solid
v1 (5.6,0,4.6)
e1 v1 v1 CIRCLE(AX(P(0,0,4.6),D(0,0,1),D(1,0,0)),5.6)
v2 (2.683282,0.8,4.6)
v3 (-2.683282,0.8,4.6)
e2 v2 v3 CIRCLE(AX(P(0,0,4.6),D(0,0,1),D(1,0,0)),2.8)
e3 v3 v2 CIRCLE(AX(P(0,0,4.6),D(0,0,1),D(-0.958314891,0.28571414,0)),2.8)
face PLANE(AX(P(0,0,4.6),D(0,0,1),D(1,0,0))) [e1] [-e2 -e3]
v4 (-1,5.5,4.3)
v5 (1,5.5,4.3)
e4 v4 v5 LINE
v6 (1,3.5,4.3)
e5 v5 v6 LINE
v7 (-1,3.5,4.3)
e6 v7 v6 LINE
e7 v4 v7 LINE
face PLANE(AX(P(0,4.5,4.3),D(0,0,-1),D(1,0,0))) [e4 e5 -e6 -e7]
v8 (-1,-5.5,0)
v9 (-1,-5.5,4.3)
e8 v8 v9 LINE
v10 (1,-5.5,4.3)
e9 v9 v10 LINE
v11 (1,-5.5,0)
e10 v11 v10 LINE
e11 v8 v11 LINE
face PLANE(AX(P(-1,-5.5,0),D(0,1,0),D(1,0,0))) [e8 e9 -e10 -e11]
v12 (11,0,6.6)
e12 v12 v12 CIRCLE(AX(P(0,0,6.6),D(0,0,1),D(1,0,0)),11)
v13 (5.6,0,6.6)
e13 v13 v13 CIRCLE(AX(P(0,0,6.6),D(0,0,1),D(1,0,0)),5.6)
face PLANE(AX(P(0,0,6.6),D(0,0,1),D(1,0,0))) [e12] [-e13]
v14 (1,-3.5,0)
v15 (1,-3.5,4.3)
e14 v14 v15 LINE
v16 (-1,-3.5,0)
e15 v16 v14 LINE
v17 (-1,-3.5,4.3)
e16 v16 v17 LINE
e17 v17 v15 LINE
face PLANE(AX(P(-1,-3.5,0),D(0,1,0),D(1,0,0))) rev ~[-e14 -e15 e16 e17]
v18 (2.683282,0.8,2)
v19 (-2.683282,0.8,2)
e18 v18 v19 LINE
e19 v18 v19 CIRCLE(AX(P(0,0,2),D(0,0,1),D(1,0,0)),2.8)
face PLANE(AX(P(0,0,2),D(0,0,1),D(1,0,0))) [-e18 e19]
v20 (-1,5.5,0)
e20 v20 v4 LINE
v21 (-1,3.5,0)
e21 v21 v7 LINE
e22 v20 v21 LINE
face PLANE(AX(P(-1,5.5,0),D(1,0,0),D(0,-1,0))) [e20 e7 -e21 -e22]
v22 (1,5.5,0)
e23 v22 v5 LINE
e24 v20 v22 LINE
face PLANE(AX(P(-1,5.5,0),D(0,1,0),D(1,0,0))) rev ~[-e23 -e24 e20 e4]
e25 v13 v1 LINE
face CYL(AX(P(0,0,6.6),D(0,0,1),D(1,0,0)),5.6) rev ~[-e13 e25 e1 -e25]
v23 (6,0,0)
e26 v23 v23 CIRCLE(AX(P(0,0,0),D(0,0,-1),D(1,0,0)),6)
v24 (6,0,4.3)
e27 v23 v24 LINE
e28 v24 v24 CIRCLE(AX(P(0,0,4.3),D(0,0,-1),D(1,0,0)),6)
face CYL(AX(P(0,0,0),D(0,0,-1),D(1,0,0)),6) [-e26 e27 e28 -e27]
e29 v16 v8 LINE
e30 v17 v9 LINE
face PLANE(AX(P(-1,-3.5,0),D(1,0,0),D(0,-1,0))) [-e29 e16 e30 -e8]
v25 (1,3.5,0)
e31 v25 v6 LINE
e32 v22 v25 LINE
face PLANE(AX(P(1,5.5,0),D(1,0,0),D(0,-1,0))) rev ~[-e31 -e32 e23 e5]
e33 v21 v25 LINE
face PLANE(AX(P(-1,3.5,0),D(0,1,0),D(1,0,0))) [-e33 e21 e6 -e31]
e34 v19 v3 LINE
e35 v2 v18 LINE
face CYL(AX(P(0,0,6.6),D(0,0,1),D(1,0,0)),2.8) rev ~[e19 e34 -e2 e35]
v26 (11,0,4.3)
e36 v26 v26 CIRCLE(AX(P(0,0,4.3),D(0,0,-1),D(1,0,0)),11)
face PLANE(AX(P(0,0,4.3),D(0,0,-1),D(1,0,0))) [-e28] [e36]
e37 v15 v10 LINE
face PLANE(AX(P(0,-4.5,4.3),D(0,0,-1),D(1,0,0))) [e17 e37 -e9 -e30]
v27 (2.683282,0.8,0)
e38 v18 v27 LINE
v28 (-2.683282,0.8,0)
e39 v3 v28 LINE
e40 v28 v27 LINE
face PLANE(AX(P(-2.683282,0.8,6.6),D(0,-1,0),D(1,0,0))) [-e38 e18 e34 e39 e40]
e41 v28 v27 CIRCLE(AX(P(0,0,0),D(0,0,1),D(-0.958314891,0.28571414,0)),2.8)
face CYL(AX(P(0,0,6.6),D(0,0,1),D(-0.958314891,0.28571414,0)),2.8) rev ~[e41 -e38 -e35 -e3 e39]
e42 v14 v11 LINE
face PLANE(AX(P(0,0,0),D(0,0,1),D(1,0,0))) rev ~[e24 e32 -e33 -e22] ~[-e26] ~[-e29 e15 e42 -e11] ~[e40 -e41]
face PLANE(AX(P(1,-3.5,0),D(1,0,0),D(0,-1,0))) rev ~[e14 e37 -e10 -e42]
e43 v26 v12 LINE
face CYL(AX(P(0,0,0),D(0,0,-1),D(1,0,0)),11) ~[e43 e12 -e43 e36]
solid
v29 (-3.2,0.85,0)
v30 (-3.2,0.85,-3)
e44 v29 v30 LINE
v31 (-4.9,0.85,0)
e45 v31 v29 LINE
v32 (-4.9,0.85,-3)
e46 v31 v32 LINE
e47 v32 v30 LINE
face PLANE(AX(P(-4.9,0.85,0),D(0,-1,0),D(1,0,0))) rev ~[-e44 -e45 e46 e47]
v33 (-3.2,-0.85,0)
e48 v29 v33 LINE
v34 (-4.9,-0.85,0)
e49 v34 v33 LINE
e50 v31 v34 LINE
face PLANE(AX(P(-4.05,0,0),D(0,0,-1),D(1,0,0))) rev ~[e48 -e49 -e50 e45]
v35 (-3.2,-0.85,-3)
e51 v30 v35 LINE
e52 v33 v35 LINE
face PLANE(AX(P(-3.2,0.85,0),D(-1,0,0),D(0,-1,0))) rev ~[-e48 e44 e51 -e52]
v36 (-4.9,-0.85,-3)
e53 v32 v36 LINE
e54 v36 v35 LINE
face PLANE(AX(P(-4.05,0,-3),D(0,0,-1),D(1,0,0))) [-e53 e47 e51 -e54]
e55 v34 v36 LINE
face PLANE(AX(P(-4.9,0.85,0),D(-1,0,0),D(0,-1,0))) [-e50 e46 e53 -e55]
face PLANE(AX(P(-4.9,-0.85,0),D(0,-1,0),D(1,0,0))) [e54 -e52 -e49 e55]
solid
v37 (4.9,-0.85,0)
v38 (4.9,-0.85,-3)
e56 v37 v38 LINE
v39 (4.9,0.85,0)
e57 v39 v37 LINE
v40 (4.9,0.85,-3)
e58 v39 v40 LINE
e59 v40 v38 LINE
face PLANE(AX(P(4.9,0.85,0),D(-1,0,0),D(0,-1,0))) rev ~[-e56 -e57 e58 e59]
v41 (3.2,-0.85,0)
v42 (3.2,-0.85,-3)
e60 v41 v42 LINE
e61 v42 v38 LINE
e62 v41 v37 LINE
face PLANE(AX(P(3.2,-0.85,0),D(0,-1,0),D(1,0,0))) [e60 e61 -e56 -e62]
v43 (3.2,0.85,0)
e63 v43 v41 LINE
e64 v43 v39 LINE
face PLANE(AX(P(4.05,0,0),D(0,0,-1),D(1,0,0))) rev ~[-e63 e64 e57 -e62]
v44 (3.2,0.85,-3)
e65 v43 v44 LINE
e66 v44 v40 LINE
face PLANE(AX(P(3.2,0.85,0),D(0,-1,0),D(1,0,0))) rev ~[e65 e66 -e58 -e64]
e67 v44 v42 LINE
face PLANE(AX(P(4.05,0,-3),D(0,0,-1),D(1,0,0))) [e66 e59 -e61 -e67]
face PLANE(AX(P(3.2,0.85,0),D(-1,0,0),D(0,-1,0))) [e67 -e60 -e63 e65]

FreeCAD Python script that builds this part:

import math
import FreeCAD as App
import Part
import Sketcher
Q = App.Units.Quantity

doc = App.newDocument("Part")
body = doc.addObject("PartDesign::Body", "Body")
body.AllowCompound = True

# Sketch on XY plane
sketch1 = body.newObject("Sketcher::SketchObject", "Sketch")
sketch1.AttachmentSupport = (doc.getObject("XY_Plane"), [""])
sketch1.MapMode = "FlatFace"
sketch1.addGeometry(Part.LineSegment(App.Vector(-4.9, -0.8, 0), App.Vector(-4.9, 0.8, 0)), False)
sketch1.addGeometry(Part.LineSegment(App.Vector(-4.9, 0.8, 0), App.Vector(-3.2, 0.8, 0)), False)
sketch1.addGeometry(Part.LineSegment(App.Vector(-3.2, 0.8, 0), App.Vector(-3.2, -0.8, 0)), False)
sketch1.addGeometry(Part.LineSegment(App.Vector(-3.2, -0.8, 0), App.Vector(-4.9, -0.8, 0)), False)
sketch1.addGeometry(Part.LineSegment(App.Vector(3.2, -0.8, 0), App.Vector(3.2, 0.8, 0)), False)
sketch1.addGeometry(Part.LineSegment(App.Vector(3.2, 0.8, 0), App.Vector(4.9, 0.8, 0)), False)
sketch1.addGeometry(Part.LineSegment(App.Vector(4.9, 0.8, 0), App.Vector(4.9, -0.8, 0)), False)
sketch1.addGeometry(Part.LineSegment(App.Vector(4.9, -0.8, 0), App.Vector(3.2, -0.8, 0)), False)
sketch1.addConstraint(Sketcher.Constraint("Coincident", 0, 2, 1, 1))
sketch1.addConstraint(Sketcher.Constraint("Coincident", 1, 2, 2, 1))
sketch1.addConstraint(Sketcher.Constraint("Coincident", 2, 2, 3, 1))
sketch1.addConstraint(Sketcher.Constraint("Coincident", 3, 2, 0, 1))
sketch1.addConstraint(Sketcher.Constraint("Coincident", 4, 2, 5, 1))
sketch1.addConstraint(Sketcher.Constraint("Coincident", 5, 2, 6, 1))
sketch1.addConstraint(Sketcher.Constraint("Coincident", 6, 2, 7, 1))
sketch1.addConstraint(Sketcher.Constraint("Coincident", 7, 2, 4, 1))
sketch1.addConstraint(Sketcher.Constraint("Vertical", 0))
sketch1.addConstraint(Sketcher.Constraint("Horizontal", 1))
sketch1.addConstraint(Sketcher.Constraint("Vertical", 2))
sketch1.addConstraint(Sketcher.Constraint("Horizontal", 3))
sketch1.addConstraint(Sketcher.Constraint("Vertical", 4))
sketch1.addConstraint(Sketcher.Constraint("Horizontal", 5))
sketch1.addConstraint(Sketcher.Constraint("Vertical", 6))
sketch1.addConstraint(Sketcher.Constraint("Horizontal", 7))
sketch1.addConstraint(Sketcher.Constraint("Symmetric", 2, 2, 4, 2, -1, 1))
sketch1.addConstraint(Sketcher.Constraint("Symmetric", 0, 2, 6, 2, -1, 1))
sketch1.addConstraint(Sketcher.Constraint("Horizontal", 1, 2, 4, 2))
sketch1.addConstraint(Sketcher.Constraint("Equal", 7, 0))
sketch1.addConstraint(Sketcher.Constraint("DistanceX", 1, 1, 1, 2, Q("1.7 mm")))
sketch1.addConstraint(Sketcher.Constraint("DistanceX", 0, 2, -1, 1, Q("4.9 mm")))
pad1 = body.newObject("PartDesign::Pad", "Pad")
pad1.Profile = sketch1
pad1.Length = 3
pad1.Reversed = True
body2 = doc.addObject("PartDesign::Body", "Body001")

# Sketch on XY plane
sketch2 = body2.newObject("Sketcher::SketchObject", "Sketch001")
sketch2.AttachmentSupport = (doc.getObject("XY_Plane001"), [""])
sketch2.MapMode = "FlatFace"
sketch2.addGeometry(Part.Circle(App.Vector(0, 0, 0), App.Vector(0, 0, 1), 11), False)
sketch2.addConstraint(Sketcher.Constraint("Coincident", 0, 3, -1, 1))
sketch2.addConstraint(Sketcher.Constraint("Diameter", 0, Q("22 mm")))
pad2 = body2.newObject("PartDesign::Pad", "Pad001")
pad2.Profile = sketch2
pad2.Length = 6.6

# Sketch on XY plane
sketch3 = body2.newObject("Sketcher::SketchObject", "Sketch002")
sketch3.AttachmentSupport = (doc.getObject("XY_Plane001"), [""])
sketch3.MapMode = "FlatFace"
sketch3.addGeometry(Part.Circle(App.Vector(0, 0, 0), App.Vector(0, 0, 1), 11), False)
sketch3.addGeometry(Part.Circle(App.Vector(0, 0, 0), App.Vector(0, 0, 1), 6), False)
sketch3.addConstraint(Sketcher.Constraint("Coincident", 0, 3, -1, 1))
sketch3.addConstraint(Sketcher.Constraint("Coincident", 1, 3, -1, 1))
sketch3.addConstraint(Sketcher.Constraint("Diameter", 0, Q("22 mm")))
sketch3.addConstraint(Sketcher.Constraint("Diameter", 1, Q("12 mm")))
pocket1 = body2.newObject("PartDesign::Pocket", "Pocket")
pocket1.Profile = sketch3
pocket1.Length = 4.3
pocket1.Reversed = True

# Sketch on XY plane
sketch4 = body2.newObject("Sketcher::SketchObject", "Sketch003")
sketch4.AttachmentSupport = (doc.getObject("XY_Plane001"), [""])
sketch4.MapMode = "FlatFace"
sketch4.AttachmentOffset = App.Placement(App.Vector(0, 0, 6.6), App.Rotation())
sketch4.addGeometry(Part.LineSegment(App.Vector(2.7, 0.8, 0), App.Vector(-2.7, 0.8, 0)), False)
sketch4.addGeometry(Part.ArcOfCircle(Part.Circle(App.Vector(0, 0, 0), App.Vector(0, 0, 1), 2.8), math.radians(163), math.radians(377)), False)
sketch4.addConstraint(Sketcher.Constraint("Coincident", 0, 1, 1, 2))
sketch4.addConstraint(Sketcher.Constraint("Coincident", 1, 1, 0, 2))
sketch4.addConstraint(Sketcher.Constraint("Horizontal", 0))
sketch4.addConstraint(Sketcher.Constraint("Coincident", 1, 3, -1, 1))
sketch4.addConstraint(Sketcher.Constraint("Radius", 1, Q("2.8 mm")))
sketch4.addConstraint(Sketcher.Constraint("DistanceY", -1, 1, 0, 1, Q("0.8 mm")))
pocket2 = body2.newObject("PartDesign::Pocket", "Pocket001")
pocket2.Profile = sketch4
pocket2.Type = "ThroughAll"

# Sketch on XY plane
sketch5 = body2.newObject("Sketcher::SketchObject", "Sketch004")
sketch5.AttachmentSupport = (doc.getObject("XY_Plane001"), [""])
sketch5.MapMode = "FlatFace"
sketch5.addGeometry(Part.LineSegment(App.Vector(-1, -5.5, 0), App.Vector(-1, -3.5, 0)), False)
sketch5.addGeometry(Part.LineSegment(App.Vector(-1, -3.5, 0), App.Vector(1, -3.5, 0)), False)
sketch5.addGeometry(Part.LineSegment(App.Vector(1, -3.5, 0), App.Vector(1, -5.5, 0)), False)
sketch5.addGeometry(Part.LineSegment(App.Vector(1, -5.5, 0), App.Vector(-1, -5.5, 0)), False)
sketch5.addGeometry(Part.LineSegment(App.Vector(-1, 3.5, 0), App.Vector(-1, 5.5, 0)), False)
sketch5.addGeometry(Part.LineSegment(App.Vector(-1, 5.5, 0), App.Vector(1, 5.5, 0)), False)
sketch5.addGeometry(Part.LineSegment(App.Vector(1, 5.5, 0), App.Vector(1, 3.5, 0)), False)
sketch5.addGeometry(Part.LineSegment(App.Vector(1, 3.5, 0), App.Vector(-1, 3.5, 0)), False)
sketch5.addConstraint(Sketcher.Constraint("Coincident", 0, 2, 1, 1))
sketch5.addConstraint(Sketcher.Constraint("Coincident", 1, 2, 2, 1))
sketch5.addConstraint(Sketcher.Constraint("Coincident", 2, 2, 3, 1))
sketch5.addConstraint(Sketcher.Constraint("Coincident", 3, 2, 0, 1))
sketch5.addConstraint(Sketcher.Constraint("Coincident", 4, 2, 5, 1))
sketch5.addConstraint(Sketcher.Constraint("Coincident", 5, 2, 6, 1))
sketch5.addConstraint(Sketcher.Constraint("Coincident", 6, 2, 7, 1))
sketch5.addConstraint(Sketcher.Constraint("Coincident", 7, 2, 4, 1))
sketch5.addConstraint(Sketcher.Constraint("Vertical", 0))
sketch5.addConstraint(Sketcher.Constraint("Horizontal", 1))
sketch5.addConstraint(Sketcher.Constraint("Vertical", 2))
sketch5.addConstraint(Sketcher.Constraint("Horizontal", 3))
sketch5.addConstraint(Sketcher.Constraint("Vertical", 4))
sketch5.addConstraint(Sketcher.Constraint("Horizontal", 5))
sketch5.addConstraint(Sketcher.Constraint("Vertical", 6))
sketch5.addConstraint(Sketcher.Constraint("Horizontal", 7))
sketch5.addConstraint(Sketcher.Constraint("Symmetric", 2, 2, 4, 2, -1, 1))
sketch5.addConstraint(Sketcher.Constraint("Symmetric", 0, 2, 6, 2, -1, 1))
sketch5.addConstraint(Sketcher.Constraint("Vertical", 3, 2, 4, 2))
sketch5.addConstraint(Sketcher.Constraint("Equal", 7, 0))
sketch5.addConstraint(Sketcher.Constraint("DistanceX", 1, 1, 1, 2, Q("2 mm")))
sketch5.addConstraint(Sketcher.Constraint("DistanceY", 0, 2, 4, 2, Q("9 mm")))
pocket3 = body2.newObject("PartDesign::Pocket", "Pocket002")
pocket3.Profile = sketch5
pocket3.Length = 4.3
pocket3.Reversed = True

# Sketch on XY plane
sketch6 = body2.newObject("Sketcher::SketchObject", "Sketch005")
sketch6.AttachmentSupport = (doc.getObject("XY_Plane001"), [""])
sketch6.MapMode = "FlatFace"
sketch6.AttachmentOffset = App.Placement(App.Vector(0, 0, 6.6), App.Rotation())
sketch6.addGeometry(Part.Circle(App.Vector(0, 0, 0), App.Vector(0, 0, 1), 2.8), False)
sketch6.addConstraint(Sketcher.Constraint("Coincident", 0, 3, -1, 1))
sketch6.addConstraint(Sketcher.Constraint("Diameter", 0, Q("5.6 mm")))
pocket4 = body2.newObject("PartDesign::Pocket", "Pocket003")
pocket4.Profile = sketch6
pocket4.Length = 4.6

# Sketch on XY plane
sketch7 = body2.newObject("Sketcher::SketchObject", "Sketch006")
sketch7.AttachmentSupport = (doc.getObject("XY_Plane001"), [""])
sketch7.MapMode = "FlatFace"
sketch7.AttachmentOffset = App.Placement(App.Vector(0, 0, 6.6), App.Rotation())
sketch7.addGeometry(Part.Circle(App.Vector(0, 0, 0), App.Vector(0, 0, 1), 6), False)
sketch7.addConstraint(Sketcher.Constraint("Coincident", 0, 3, -1, 1))
sketch7.addConstraint(Sketcher.Constraint("Diameter", 0, Q("11.2 mm")))
pocket5 = body2.newObject("PartDesign::Pocket", "Pocket004")
pocket5.Profile = sketch7
pocket5.Length = 2

doc.recompute()
